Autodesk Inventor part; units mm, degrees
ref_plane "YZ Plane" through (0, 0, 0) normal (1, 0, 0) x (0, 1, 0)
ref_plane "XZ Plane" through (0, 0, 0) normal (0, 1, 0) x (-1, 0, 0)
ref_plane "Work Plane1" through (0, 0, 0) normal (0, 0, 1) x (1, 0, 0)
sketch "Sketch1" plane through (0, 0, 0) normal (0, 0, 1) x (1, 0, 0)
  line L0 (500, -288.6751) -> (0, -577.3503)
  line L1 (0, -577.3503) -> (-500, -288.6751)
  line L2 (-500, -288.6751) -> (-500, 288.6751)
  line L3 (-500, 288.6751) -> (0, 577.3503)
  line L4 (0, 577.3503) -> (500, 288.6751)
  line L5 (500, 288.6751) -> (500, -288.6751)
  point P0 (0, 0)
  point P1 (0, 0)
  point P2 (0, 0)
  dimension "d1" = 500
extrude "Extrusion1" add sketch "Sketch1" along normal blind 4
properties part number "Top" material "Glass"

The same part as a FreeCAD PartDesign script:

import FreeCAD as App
import Part
import Sketcher
from FreeCAD import Vector
Q = App.Units.Quantity


def add_polygon(sketch, points):
    """Adds a closed chain of lines whose ends are joined by coincident constraints."""
    first, n = sketch.GeometryCount, len(points)
    for a, b in zip(points, points[1:] + points[:1]):
        sketch.addGeometry(Part.LineSegment(App.Vector(*a, 0), App.Vector(*b, 0)), False)
    for i in range(n):
        sketch.addConstraint(Sketcher.Constraint("Coincident", first + i, 2, first + (i + 1) % n, 1))

doc = App.newDocument("Part")
body = doc.addObject("PartDesign::Body", "Body")

# Sketch on XY plane
sketch1 = body.newObject("Sketcher::SketchObject", "Sketch")
sketch1.AttachmentSupport = (doc.getObject("XY_Plane"), [""])
sketch1.MapMode = "FlatFace"
add_polygon(sketch1, [(0, -577), (500, -289), (500, 289), (0, 577), (-500, 289), (-500, -289)])  # lines 0-5
sketch1.addConstraint([
    Sketcher.Constraint("Vertical", 1),
    Sketcher.Constraint("Vertical", 4),
    Sketcher.Constraint("Symmetric", 0, 2, 3, 2, -1, 1),
    Sketcher.Constraint("Symmetric", 2, 2, 5, 2, -1, 1),
    Sketcher.Constraint("PointOnObject", 2, 2, -2),
    Sketcher.Constraint("Parallel", 2, 5),
    Sketcher.Constraint("Horizontal", 1, 2, 3, 2),
    Sketcher.Constraint("DistanceX", -1, 1, 0, 2, 500.0),
    Sketcher.Constraint("Angle", 0, Q("30 deg")),
    Sketcher.Constraint("DistanceY", 1, 1, 1, 2, 577.3502),
])
pad1 = body.newObject("PartDesign::Pad", "Pad")
pad1.Profile = sketch1
pad1.Length = 4

doc.recompute()
